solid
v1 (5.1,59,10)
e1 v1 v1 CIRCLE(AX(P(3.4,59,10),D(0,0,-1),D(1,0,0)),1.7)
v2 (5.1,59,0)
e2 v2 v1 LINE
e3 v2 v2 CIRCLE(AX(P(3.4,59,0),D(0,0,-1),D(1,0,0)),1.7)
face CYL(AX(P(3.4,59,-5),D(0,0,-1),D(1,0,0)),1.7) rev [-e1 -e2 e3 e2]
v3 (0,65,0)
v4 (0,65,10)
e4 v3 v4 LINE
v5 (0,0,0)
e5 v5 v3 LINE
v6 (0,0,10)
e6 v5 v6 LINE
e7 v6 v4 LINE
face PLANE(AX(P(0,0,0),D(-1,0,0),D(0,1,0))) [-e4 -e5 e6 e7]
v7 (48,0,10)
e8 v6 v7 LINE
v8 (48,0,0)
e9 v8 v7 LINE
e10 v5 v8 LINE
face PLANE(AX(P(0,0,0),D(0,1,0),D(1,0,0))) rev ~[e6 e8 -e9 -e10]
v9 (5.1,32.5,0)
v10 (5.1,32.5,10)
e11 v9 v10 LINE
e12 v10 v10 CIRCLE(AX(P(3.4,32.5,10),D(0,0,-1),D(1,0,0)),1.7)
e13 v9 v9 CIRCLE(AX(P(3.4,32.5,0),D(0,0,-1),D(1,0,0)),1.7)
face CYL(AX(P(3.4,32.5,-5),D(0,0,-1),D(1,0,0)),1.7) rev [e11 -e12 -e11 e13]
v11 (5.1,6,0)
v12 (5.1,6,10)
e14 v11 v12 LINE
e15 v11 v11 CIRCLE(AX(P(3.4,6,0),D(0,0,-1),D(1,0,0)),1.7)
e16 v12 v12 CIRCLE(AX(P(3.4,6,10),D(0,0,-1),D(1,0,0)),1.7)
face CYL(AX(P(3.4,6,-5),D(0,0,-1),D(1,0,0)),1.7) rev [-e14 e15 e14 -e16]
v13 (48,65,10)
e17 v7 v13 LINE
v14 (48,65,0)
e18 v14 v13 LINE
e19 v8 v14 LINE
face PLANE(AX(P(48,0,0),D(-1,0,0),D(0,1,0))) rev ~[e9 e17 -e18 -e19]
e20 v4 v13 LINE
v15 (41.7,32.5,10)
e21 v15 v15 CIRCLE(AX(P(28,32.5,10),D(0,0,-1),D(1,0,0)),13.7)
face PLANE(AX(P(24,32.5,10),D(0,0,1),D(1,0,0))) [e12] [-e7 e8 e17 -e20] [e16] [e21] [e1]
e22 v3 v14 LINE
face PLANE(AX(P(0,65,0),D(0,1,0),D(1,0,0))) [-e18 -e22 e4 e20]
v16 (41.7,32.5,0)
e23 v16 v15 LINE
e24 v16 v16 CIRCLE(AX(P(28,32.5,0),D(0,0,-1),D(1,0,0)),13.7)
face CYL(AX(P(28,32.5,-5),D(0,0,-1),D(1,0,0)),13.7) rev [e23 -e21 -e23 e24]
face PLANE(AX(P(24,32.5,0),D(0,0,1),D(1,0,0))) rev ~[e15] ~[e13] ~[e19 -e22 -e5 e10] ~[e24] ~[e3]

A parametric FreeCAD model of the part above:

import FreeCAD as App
import Part
import Sketcher

V = App.Vector


def add_polygon(sketch, points):
    """Adds a closed chain of lines whose ends are joined by coincident constraints."""
    first, n = sketch.GeometryCount, len(points)
    for a, b in zip(points, points[1:] + points[:1]):
        sketch.addGeometry(Part.LineSegment(App.Vector(*a, 0), App.Vector(*b, 0)), False)
    for i in range(n):
        sketch.addConstraint(Sketcher.Constraint("Coincident", first + i, 2, first + (i + 1) % n, 1))

doc = App.newDocument("Part")
params = doc.addObject("Spreadsheet::Sheet", "Params")
for row, (alias, value) in enumerate([
    ("sketch1_diameter", "3.4 mm"),
    ("pad1_length", "20 mm"),
    ("sketch2_diameter", "3.4 mm"),
    ("pad2_length", "20 mm"),
    ("sketch3_diameter", "3.4 mm"),
    ("pad3_length", "20 mm"),
    ("sketch4_diameter", "27.4 mm"),
    ("pad4_length", "50 mm"),
    ("sketch5_width", "48 mm"),
    ("sketch5_height", "65 mm"),
    ("pad5_length", "10 mm"),
], start=1):
    params.set(f"A{row}", alias)
    params.set(f"B{row}", "=" + value)
    params.setAlias(f"B{row}", alias)

body = doc.addObject("PartDesign::Body", "Body")

sketch1 = doc.addObject("Sketcher::SketchObject", "Sketch")
body.addObject(sketch1)
sketch1.AttachmentSupport = (doc.XY_Plane, [""])
sketch1.MapMode = "FlatFace"
sketch1.AttachmentOffset = App.Placement(V(0, 0, -5), App.Rotation())
sketch1.addGeometry(Part.Circle(V(3.4, 59, 0), V(0, 0, 1), 1.7), False)
sketch1.addConstraint(Sketcher.Constraint("Diameter", 0, 3.4))
sketch1.addConstraint(Sketcher.Constraint("DistanceY", -1, 1, 0, 3, 59.0))
sketch1.addConstraint(Sketcher.Constraint("DistanceX", -1, 1, 0, 3, 3.4))
sketch1.setExpression("Constraints[0]", "Params.sketch1_diameter")
pad1 = doc.addObject("PartDesign::Pad", "Pad")
body.addObject(pad1)
pad1.Profile = sketch1
pad1.setExpression("Length", "Params.pad1_length")
body2 = doc.addObject("PartDesign::Body", "Body001")

sketch2 = doc.addObject("Sketcher::SketchObject", "Sketch001")
body2.addObject(sketch2)
sketch2.AttachmentSupport = (doc.getObject("XY_Plane001"), [""])
sketch2.MapMode = "FlatFace"
sketch2.AttachmentOffset = App.Placement(V(0, 0, -5), App.Rotation())
sketch2.addGeometry(Part.Circle(V(3.4, 6, 0), V(0, 0, 1), 1.7), False)
sketch2.addConstraint(Sketcher.Constraint("Diameter", 0, 3.4))
sketch2.addConstraint(Sketcher.Constraint("DistanceY", -1, 1, 0, 3, 6.0))
sketch2.addConstraint(Sketcher.Constraint("DistanceX", -1, 1, 0, 3, 3.4))
sketch2.setExpression("Constraints[0]", "Params.sketch2_diameter")
pad2 = doc.addObject("PartDesign::Pad", "Pad001")
body2.addObject(pad2)
pad2.Profile = sketch2
pad2.setExpression("Length", "Params.pad2_length")
body3 = doc.addObject("PartDesign::Body", "Body002")

sketch3 = doc.addObject("Sketcher::SketchObject", "Sketch002")
body3.addObject(sketch3)
sketch3.AttachmentSupport = (doc.getObject("XY_Plane002"), [""])
sketch3.MapMode = "FlatFace"
sketch3.AttachmentOffset = App.Placement(V(0, 0, -5), App.Rotation())
sketch3.addGeometry(Part.Circle(V(3.4, 32.5, 0), V(0, 0, 1), 1.7), False)
sketch3.addConstraint(Sketcher.Constraint("Diameter", 0, 3.4))
sketch3.addConstraint(Sketcher.Constraint("DistanceX", -1, 1, 0, 3, 3.4))
sketch3.addConstraint(Sketcher.Constraint("DistanceY", -1, 1, 0, 3, 32.5))
sketch3.setExpression("Constraints[0]", "Params.sketch3_diameter")
pad3 = doc.addObject("PartDesign::Pad", "Pad002")
body3.addObject(pad3)
pad3.Profile = sketch3
pad3.setExpression("Length", "Params.pad3_length")
body4 = doc.addObject("PartDesign::Body", "Body003")

sketch4 = doc.addObject("Sketcher::SketchObject", "Sketch003")
body4.addObject(sketch4)
sketch4.AttachmentSupport = (doc.getObject("XY_Plane003"), [""])
sketch4.MapMode = "FlatFace"
sketch4.AttachmentOffset = App.Placement(V(0, 0, -5), App.Rotation())
sketch4.addGeometry(Part.Circle(V(28, 32, 0), V(0, 0, 1), 14), False)
sketch4.addConstraint(Sketcher.Constraint("Diameter", 0, 27.4))
sketch4.addConstraint(Sketcher.Constraint("DistanceX", -1, 1, 0, 3, 28.0))
sketch4.addConstraint(Sketcher.Constraint("DistanceY", -1, 1, 0, 3, 32.5))
sketch4.setExpression("Constraints[0]", "Params.sketch4_diameter")
pad4 = doc.addObject("PartDesign::Pad", "Pad003")
body4.addObject(pad4)
pad4.Profile = sketch4
pad4.setExpression("Length", "Params.pad4_length")
body5 = doc.addObject("PartDesign::Body", "Body004")

sketch5 = doc.addObject("Sketcher::SketchObject", "Sketch004")
body5.addObject(sketch5)
sketch5.AttachmentSupport = (doc.getObject("XY_Plane004"), [""])
sketch5.MapMode = "FlatFace"
add_polygon(sketch5, [(0, 65), (0, 0), (48, 0), (48, 65)])
sketch5.addConstraint(Sketcher.Constraint("Vertical", 0))
sketch5.addConstraint(Sketcher.Constraint("Horizontal", 1))
sketch5.addConstraint(Sketcher.Constraint("Vertical", 2))
sketch5.addConstraint(Sketcher.Constraint("Horizontal", 3))
sketch5.addConstraint(Sketcher.Constraint("Coincident", 0, 2, -1, 1))
sketch5.addConstraint(Sketcher.Constraint("DistanceX", 1, 1, 1, 2, 48.0))
sketch5.addConstraint(Sketcher.Constraint("DistanceY", 0, 2, 0, 1, 65.0))
sketch5.setExpression("Constraints[9]", "Params.sketch5_width")
sketch5.setExpression("Constraints[10]", "Params.sketch5_height")
pad5 = doc.addObject("PartDesign::Pad", "Pad004")
body5.addObject(pad5)
pad5.Profile = sketch5
pad5.setExpression("Length", "Params.pad5_length")
doc.recompute()

boolean = doc.addObject("PartDesign::Boolean", "Boolean")
body5.addObject(boolean)
boolean.Type = "Cut"
boolean.addObjects([body4])
doc.recompute()

boolean2 = doc.addObject("PartDesign::Boolean", "Boolean001")
body5.addObject(boolean2)
boolean2.Type = "Cut"
boolean2.addObjects([body3])
doc.recompute()

boolean3 = doc.addObject("PartDesign::Boolean", "Boolean002")
body5.addObject(boolean3)
boolean3.Type = "Cut"
boolean3.addObjects([body2])
doc.recompute()

boolean4 = doc.addObject("PartDesign::Boolean", "Boolean003")
body5.addObject(boolean4)
boolean4.Type = "Cut"
boolean4.addObjects([body])

doc.recompute()
